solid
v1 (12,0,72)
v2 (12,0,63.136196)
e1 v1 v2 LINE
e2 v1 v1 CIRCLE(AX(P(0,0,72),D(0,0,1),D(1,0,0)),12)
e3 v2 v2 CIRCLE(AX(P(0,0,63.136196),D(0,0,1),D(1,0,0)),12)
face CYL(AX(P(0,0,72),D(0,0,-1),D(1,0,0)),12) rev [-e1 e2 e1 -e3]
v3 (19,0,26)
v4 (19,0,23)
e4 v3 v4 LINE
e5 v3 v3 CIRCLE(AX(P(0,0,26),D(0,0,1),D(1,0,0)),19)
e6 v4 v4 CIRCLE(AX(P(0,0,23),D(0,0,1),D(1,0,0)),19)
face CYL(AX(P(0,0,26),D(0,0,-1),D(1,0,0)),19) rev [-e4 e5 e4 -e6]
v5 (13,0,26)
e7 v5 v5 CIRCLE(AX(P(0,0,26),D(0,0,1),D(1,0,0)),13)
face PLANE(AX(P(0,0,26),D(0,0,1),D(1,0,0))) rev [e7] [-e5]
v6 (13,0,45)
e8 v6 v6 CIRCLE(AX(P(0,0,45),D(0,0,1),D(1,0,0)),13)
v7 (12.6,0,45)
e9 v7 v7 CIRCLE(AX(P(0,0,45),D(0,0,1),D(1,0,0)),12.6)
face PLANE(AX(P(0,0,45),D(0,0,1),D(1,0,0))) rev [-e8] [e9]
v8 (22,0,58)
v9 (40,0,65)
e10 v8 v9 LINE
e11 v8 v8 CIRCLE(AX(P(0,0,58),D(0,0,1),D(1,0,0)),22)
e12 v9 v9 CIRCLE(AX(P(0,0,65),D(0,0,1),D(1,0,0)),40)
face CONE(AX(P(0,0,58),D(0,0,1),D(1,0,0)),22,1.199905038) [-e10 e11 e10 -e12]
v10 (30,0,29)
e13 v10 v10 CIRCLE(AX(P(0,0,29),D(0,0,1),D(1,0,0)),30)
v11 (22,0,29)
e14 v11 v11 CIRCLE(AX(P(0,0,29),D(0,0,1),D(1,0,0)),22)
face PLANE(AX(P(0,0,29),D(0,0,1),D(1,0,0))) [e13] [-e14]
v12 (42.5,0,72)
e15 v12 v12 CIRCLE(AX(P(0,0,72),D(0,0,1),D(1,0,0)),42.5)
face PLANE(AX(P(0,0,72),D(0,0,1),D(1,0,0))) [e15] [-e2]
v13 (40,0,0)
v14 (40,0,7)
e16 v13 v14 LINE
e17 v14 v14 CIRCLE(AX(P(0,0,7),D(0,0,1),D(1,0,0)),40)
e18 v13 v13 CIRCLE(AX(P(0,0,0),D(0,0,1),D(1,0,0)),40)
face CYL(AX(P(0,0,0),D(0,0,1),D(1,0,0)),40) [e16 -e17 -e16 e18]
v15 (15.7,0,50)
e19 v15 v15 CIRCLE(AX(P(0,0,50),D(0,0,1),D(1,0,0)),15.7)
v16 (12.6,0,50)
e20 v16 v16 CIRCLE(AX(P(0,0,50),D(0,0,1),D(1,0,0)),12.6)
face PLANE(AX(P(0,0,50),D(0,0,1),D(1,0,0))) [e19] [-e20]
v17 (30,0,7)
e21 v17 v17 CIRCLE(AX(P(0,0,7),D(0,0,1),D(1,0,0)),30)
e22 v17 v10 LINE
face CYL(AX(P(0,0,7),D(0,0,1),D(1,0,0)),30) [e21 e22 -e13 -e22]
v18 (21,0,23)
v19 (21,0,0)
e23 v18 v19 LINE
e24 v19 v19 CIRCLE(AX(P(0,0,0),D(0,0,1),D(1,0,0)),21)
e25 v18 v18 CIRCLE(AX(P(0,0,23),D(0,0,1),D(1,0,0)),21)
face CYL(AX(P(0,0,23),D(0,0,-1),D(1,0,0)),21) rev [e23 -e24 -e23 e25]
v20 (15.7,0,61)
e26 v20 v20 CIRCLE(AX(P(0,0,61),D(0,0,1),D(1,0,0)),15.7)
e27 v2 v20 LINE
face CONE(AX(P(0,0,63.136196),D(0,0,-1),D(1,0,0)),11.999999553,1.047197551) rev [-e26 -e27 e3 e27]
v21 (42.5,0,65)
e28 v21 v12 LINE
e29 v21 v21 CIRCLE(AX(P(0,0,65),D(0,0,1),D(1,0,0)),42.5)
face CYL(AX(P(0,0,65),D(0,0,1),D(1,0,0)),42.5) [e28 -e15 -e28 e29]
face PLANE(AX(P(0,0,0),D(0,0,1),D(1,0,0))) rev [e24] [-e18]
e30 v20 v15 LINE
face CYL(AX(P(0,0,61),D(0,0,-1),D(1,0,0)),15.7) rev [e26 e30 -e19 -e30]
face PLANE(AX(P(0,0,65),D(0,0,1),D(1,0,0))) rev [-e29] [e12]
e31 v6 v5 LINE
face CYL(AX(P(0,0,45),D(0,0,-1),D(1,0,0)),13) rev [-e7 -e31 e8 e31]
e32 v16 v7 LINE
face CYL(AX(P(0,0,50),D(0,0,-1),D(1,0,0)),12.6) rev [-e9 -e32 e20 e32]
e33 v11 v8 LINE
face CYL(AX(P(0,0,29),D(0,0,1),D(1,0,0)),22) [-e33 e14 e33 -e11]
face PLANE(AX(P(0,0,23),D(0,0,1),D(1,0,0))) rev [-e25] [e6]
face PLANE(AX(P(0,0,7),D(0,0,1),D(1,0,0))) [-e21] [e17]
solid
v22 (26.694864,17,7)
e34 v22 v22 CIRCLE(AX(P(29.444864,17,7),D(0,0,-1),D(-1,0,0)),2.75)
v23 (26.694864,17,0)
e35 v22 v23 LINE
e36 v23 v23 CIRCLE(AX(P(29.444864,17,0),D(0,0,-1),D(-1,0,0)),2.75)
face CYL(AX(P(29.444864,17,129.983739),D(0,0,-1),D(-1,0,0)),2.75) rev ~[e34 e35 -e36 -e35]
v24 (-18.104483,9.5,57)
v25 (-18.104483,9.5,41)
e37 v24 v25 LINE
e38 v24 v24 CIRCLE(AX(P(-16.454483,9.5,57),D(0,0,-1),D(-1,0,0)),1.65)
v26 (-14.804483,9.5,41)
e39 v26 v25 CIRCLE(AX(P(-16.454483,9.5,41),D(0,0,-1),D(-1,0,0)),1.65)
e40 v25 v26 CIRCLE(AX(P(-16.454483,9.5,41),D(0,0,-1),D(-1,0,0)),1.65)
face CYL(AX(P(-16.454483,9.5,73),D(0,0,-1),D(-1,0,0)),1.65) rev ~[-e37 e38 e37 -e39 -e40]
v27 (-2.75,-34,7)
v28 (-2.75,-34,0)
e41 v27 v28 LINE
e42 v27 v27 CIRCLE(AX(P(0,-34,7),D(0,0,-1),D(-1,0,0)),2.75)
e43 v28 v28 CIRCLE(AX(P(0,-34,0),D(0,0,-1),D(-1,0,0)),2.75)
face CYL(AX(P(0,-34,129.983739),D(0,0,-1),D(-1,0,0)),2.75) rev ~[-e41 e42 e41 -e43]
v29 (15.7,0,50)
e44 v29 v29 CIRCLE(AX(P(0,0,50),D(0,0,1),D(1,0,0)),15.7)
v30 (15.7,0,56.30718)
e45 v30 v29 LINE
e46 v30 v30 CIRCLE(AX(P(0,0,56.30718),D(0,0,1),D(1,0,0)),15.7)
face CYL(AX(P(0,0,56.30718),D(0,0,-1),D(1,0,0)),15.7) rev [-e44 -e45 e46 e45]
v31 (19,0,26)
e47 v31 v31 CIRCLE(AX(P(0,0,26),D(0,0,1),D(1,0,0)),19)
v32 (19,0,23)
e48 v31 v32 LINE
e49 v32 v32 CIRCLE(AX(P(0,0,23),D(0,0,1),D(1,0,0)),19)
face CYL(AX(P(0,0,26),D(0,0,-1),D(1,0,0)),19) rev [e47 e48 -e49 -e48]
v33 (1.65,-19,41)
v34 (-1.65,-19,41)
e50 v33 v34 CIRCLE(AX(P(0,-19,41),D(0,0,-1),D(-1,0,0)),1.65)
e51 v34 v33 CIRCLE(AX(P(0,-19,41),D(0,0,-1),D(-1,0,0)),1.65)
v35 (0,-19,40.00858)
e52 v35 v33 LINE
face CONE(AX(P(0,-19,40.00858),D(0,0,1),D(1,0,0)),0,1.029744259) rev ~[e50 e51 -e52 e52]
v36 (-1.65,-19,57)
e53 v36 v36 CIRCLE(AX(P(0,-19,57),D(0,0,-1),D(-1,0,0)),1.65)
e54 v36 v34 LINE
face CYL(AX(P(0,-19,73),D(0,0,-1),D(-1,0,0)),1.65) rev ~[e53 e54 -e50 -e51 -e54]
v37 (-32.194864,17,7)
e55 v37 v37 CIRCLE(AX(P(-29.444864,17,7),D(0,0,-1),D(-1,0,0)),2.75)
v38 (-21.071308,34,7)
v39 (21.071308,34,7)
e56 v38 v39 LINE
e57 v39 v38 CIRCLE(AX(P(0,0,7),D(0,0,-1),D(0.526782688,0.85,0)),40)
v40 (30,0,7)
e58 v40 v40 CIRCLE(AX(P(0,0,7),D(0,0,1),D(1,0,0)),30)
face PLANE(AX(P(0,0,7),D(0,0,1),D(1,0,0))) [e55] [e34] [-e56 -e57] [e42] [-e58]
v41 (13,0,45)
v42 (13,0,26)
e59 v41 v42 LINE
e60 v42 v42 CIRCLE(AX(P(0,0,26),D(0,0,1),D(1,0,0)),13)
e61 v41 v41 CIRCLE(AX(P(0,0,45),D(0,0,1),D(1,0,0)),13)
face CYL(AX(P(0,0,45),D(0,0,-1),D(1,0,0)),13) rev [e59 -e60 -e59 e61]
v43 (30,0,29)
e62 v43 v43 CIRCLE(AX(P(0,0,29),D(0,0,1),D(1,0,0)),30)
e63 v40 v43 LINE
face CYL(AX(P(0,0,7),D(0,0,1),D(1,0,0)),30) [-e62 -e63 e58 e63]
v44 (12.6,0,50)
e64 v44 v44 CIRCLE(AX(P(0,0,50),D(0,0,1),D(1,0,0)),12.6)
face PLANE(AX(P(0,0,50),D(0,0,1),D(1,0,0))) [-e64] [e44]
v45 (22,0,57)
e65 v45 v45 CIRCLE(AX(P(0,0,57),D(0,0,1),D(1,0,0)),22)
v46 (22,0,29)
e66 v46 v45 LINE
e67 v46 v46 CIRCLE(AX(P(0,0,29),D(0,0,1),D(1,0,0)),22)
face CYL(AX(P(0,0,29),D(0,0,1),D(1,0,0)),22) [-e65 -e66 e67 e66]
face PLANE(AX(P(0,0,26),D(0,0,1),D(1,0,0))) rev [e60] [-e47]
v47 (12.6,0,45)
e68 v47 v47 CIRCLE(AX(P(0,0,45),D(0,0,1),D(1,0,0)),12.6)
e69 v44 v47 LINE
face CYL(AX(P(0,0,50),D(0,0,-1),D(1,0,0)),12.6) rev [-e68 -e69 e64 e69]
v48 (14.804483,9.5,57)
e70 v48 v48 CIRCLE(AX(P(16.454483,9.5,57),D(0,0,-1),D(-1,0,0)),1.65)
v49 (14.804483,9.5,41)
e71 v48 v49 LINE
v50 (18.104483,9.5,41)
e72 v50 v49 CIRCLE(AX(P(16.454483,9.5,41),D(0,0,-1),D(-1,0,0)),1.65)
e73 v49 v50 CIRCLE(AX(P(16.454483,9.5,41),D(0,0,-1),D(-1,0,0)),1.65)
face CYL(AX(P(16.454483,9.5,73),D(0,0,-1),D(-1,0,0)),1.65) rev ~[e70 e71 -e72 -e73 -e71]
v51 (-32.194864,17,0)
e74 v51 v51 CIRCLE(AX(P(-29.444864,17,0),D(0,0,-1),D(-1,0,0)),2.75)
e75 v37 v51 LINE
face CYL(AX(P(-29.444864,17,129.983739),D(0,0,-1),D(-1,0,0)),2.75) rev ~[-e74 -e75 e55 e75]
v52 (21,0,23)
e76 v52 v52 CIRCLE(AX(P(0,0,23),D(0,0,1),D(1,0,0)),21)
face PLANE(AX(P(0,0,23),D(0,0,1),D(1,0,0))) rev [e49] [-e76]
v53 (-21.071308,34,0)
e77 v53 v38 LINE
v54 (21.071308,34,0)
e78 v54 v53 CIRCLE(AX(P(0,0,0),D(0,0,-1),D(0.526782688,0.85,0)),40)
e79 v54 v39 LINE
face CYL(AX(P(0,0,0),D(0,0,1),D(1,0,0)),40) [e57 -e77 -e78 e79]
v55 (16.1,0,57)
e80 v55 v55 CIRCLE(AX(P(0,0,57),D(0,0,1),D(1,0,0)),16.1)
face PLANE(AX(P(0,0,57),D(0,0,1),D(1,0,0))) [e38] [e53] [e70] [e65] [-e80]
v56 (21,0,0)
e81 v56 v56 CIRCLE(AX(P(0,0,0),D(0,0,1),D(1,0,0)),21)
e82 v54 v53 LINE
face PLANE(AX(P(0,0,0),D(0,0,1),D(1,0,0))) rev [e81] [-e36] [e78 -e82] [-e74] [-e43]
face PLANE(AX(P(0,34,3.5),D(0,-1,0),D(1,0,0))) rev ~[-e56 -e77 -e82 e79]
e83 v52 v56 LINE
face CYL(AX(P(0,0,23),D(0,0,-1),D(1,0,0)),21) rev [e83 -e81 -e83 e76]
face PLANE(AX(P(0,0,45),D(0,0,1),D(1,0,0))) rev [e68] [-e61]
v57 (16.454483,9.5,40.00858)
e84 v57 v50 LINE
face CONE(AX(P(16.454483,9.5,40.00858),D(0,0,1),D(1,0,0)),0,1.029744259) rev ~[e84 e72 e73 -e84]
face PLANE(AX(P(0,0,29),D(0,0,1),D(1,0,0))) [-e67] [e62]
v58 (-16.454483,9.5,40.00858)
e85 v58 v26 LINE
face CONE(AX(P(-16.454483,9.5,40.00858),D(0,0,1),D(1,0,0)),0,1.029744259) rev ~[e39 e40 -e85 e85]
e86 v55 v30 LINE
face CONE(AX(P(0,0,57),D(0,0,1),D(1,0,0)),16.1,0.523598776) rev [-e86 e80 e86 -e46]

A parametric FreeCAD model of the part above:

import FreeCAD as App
import Part
import Sketcher

V = App.Vector
Q = App.Units.Quantity


def add_polygon(sketch, points):
    """Adds a closed chain of lines whose ends are joined by coincident constraints."""
    first, n = sketch.GeometryCount, len(points)
    for a, b in zip(points, points[1:] + points[:1]):
        sketch.addGeometry(Part.LineSegment(App.Vector(*a, 0), App.Vector(*b, 0)), False)
    for i in range(n):
        sketch.addConstraint(Sketcher.Constraint("Coincident", first + i, 2, first + (i + 1) % n, 1))

doc = App.newDocument("Part")
body = doc.addObject("PartDesign::Body", "Body")

sketch1 = body.newObject("Sketcher::SketchObject", "Sketch")
sketch1.AttachmentSupport = (doc.getObject("XZ_Plane"), [""])
sketch1.MapMode = "FlatFace"
add_polygon(sketch1, [(22, 58), (40, 65), (42.5, 65), (42.5, 72), (12, 72), (12, 63.14), (15.7, 61), (15.7, 50), (12.6, 50), (12.6, 45), (13, 45), (13, 26), (19, 26), (19, 23), (21, 23), (21, 0), (40, 0), (40, 7), (30, 7), (30, 29), (22, 29)])
sketch1.addConstraint(Sketcher.Constraint("Horizontal", 1))
sketch1.addConstraint(Sketcher.Constraint("Vertical", 2))
sketch1.addConstraint(Sketcher.Constraint("Horizontal", 3))
sketch1.addConstraint(Sketcher.Constraint("Vertical", 4))
sketch1.addConstraint(Sketcher.Constraint("Vertical", 6))
sketch1.addConstraint(Sketcher.Constraint("Horizontal", 7))
sketch1.addConstraint(Sketcher.Constraint("Vertical", 8))
sketch1.addConstraint(Sketcher.Constraint("Horizontal", 9))
sketch1.addConstraint(Sketcher.Constraint("Vertical", 10))
sketch1.addConstraint(Sketcher.Constraint("Horizontal", 11))
sketch1.addConstraint(Sketcher.Constraint("Vertical", 12))
sketch1.addConstraint(Sketcher.Constraint("Horizontal", 13))
sketch1.addConstraint(Sketcher.Constraint("Vertical", 14))
sketch1.addConstraint(Sketcher.Constraint("Horizontal", 15))
sketch1.addConstraint(Sketcher.Constraint("Vertical", 16))
sketch1.addConstraint(Sketcher.Constraint("Horizontal", 17))
sketch1.addConstraint(Sketcher.Constraint("Vertical", 18))
sketch1.addConstraint(Sketcher.Constraint("Horizontal", 19))
sketch1.addConstraint(Sketcher.Constraint("Vertical", 20))
sketch1.addConstraint(Sketcher.Constraint("PointOnObject", 14, 2, -1))
sketch1.addConstraint(Sketcher.Constraint("Vertical", 0, 2, 15, 2))
sketch1.addConstraint(Sketcher.Constraint("Equal", 15, 10))
sketch1.addConstraint(Sketcher.Constraint("Equal", 2, 16))
sketch1.addConstraint(Sketcher.Constraint("DistanceX", 11, 1, 11, 2, Q("6 mm")))
sketch1.addConstraint(Sketcher.Constraint("DistanceX", 13, 1, 13, 2, Q("2 mm")))
sketch1.addConstraint(Sketcher.Constraint("DistanceX", 15, 1, 15, 2, Q("19 mm")))
sketch1.addConstraint(Sketcher.Constraint("DistanceX", 17, 2, 17, 1, Q("10 mm")))
sketch1.addConstraint(Sketcher.Constraint("DistanceX", 19, 2, 19, 1, Q("8 mm")))
sketch1.addConstraint(Sketcher.Constraint("DistanceY", 2, 1, 2, 2, Q("7 mm")))
sketch1.addConstraint(Sketcher.Constraint("DistanceY", 6, 2, 6, 1, Q("11 mm")))
sketch1.addConstraint(Sketcher.Constraint("DistanceY", 8, 2, 8, 1, Q("5 mm")))
sketch1.addConstraint(Sketcher.Constraint("DistanceY", 12, 2, 12, 1, Q("3 mm")))
sketch1.addConstraint(Sketcher.Constraint("DistanceY", 14, 2, 14, 1, Q("23 mm")))
sketch1.addConstraint(Sketcher.Constraint("DistanceY", 18, 1, 18, 2, Q("22 mm")))
sketch1.addConstraint(Sketcher.Constraint("DistanceY", 20, 1, 20, 2, Q("29 mm")))
sketch1.addConstraint(Sketcher.Constraint("Angle", 5, Q("-30 deg")))
sketch1.addConstraint(Sketcher.Constraint("DistanceX", 1, 1, 1, 2, Q("2.5 mm")))
sketch1.addConstraint(Sketcher.Constraint("DistanceX", 3, 2, 3, 1, Q("30.5 mm")))
sketch1.addConstraint(Sketcher.Constraint("DistanceX", 7, 2, 7, 1, Q("3.1 mm")))
sketch1.addConstraint(Sketcher.Constraint("DistanceX", 9, 1, 9, 2, Q("0.4 mm")))
sketch1.addConstraint(Sketcher.Constraint("DistanceX", -1, 1, 0, 2, Q("40 mm")))
sketch1.addConstraint(Sketcher.Constraint("DistanceY", -1, 1, 0, 2, Q("65 mm")))
revolution = body.newObject("PartDesign::Revolution", "Revolution")
revolution.Profile = sketch1
revolution.ReferenceAxis = (sketch1, ["V_Axis"])
revolution.Angle = 360
body2 = doc.addObject("PartDesign::Body", "Body001")

sketch2 = body2.newObject("Sketcher::SketchObject", "Sketch001")
sketch2.AttachmentSupport = (doc.getObject("XZ_Plane001"), [""])
sketch2.MapMode = "FlatFace"
add_polygon(sketch2, [(21, 23), (21, 0), (40, 0), (40, 7), (30, 7), (30, 29), (22, 29), (22, 57), (16.1, 57), (15.7, 56.31), (15.7, 50), (12.6, 50), (12.6, 45), (13, 45), (13, 26), (19, 26), (19, 23)])
sketch2.addConstraint(Sketcher.Constraint("Vertical", 0))
sketch2.addConstraint(Sketcher.Constraint("Horizontal", 1))
sketch2.addConstraint(Sketcher.Constraint("Vertical", 2))
sketch2.addConstraint(Sketcher.Constraint("Horizontal", 3))
sketch2.addConstraint(Sketcher.Constraint("Vertical", 4))
sketch2.addConstraint(Sketcher.Constraint("Horizontal", 5))
sketch2.addConstraint(Sketcher.Constraint("Vertical", 6))
sketch2.addConstraint(Sketcher.Constraint("Horizontal", 7))
sketch2.addConstraint(Sketcher.Constraint("Vertical", 9))
sketch2.addConstraint(Sketcher.Constraint("Horizontal", 10))
sketch2.addConstraint(Sketcher.Constraint("Vertical", 11))
sketch2.addConstraint(Sketcher.Constraint("Horizontal", 12))
sketch2.addConstraint(Sketcher.Constraint("Vertical", 13))
sketch2.addConstraint(Sketcher.Constraint("Horizontal", 14))
sketch2.addConstraint(Sketcher.Constraint("Vertical", 15))
sketch2.addConstraint(Sketcher.Constraint("Horizontal", 16))
sketch2.addConstraint(Sketcher.Constraint("PointOnObject", 0, 2, -1))
sketch2.addConstraint(Sketcher.Constraint("Equal", 1, 13))
sketch2.addConstraint(Sketcher.Constraint("DistanceX", 1, 1, 1, 2, Q("19 mm")))
sketch2.addConstraint(Sketcher.Constraint("DistanceX", 3, 2, 3, 1, Q("10 mm")))
sketch2.addConstraint(Sketcher.Constraint("DistanceX", 5, 2, 5, 1, Q("8 mm")))
sketch2.addConstraint(Sketcher.Constraint("DistanceX", 14, 1, 14, 2, Q("6 mm")))
sketch2.addConstraint(Sketcher.Constraint("DistanceX", 16, 1, 16, 2, Q("2 mm")))
sketch2.addConstraint(Sketcher.Constraint("DistanceY", 0, 2, 0, 1, Q("23 mm")))
sketch2.addConstraint(Sketcher.Constraint("DistanceY", 2, 1, 2, 2, Q("7 mm")))
sketch2.addConstraint(Sketcher.Constraint("DistanceY", 4, 1, 4, 2, Q("22 mm")))
sketch2.addConstraint(Sketcher.Constraint("DistanceY", 6, 1, 6, 2, Q("28 mm")))
sketch2.addConstraint(Sketcher.Constraint("DistanceY", 11, 2, 11, 1, Q("5 mm")))
sketch2.addConstraint(Sketcher.Constraint("DistanceY", 15, 2, 15, 1, Q("3 mm")))
sketch2.addConstraint(Sketcher.Constraint("Angle", 8, Q("-120 deg")))
sketch2.addConstraint(Sketcher.Constraint("DistanceX", 7, 2, 7, 1, Q("5.9 mm")))
sketch2.addConstraint(Sketcher.Constraint("DistanceX", 10, 2, 10, 1, Q("3.1 mm")))
sketch2.addConstraint(Sketcher.Constraint("DistanceX", 12, 1, 12, 2, Q("0.4 mm")))
sketch2.addConstraint(Sketcher.Constraint("DistanceX", -1, 1, 0, 2, Q("21 mm")))
revolution2 = body2.newObject("PartDesign::Revolution", "Revolution001")
revolution2.Profile = sketch2
revolution2.ReferenceAxis = (sketch2, ["V_Axis"])
revolution2.Angle = 360

sketch3 = body2.newObject("Sketcher::SketchObject", "Sketch002")
sketch3.AttachmentSupport = (doc.getObject("XZ_Plane001"), [""])
sketch3.MapMode = "FlatFace"
sketch3.AttachmentOffset = App.Placement(V(0, 0, -34), App.Rotation())
add_polygon(sketch3, [(-40, 8), (-40, 0), (40, 0), (40, 8)])
sketch3.addConstraint(Sketcher.Constraint("Vertical", 0))
sketch3.addConstraint(Sketcher.Constraint("Horizontal", 1))
sketch3.addConstraint(Sketcher.Constraint("Vertical", 2))
sketch3.addConstraint(Sketcher.Constraint("Horizontal", 3))
sketch3.addConstraint(Sketcher.Constraint("DistanceX", 1, 1, 1, 2, Q("80 mm")))
sketch3.addConstraint(Sketcher.Constraint("DistanceY", 0, 2, 0, 1, Q("8 mm")))
sketch3.addConstraint(Sketcher.Constraint("DistanceX", 0, 2, -1, 1, Q("40 mm")))
sketch3.addConstraint(Sketcher.Constraint("DistanceY", 0, 2, -1, 1, Q("0.5 mm")))
pocket1 = body2.newObject("PartDesign::Pocket", "Pocket")
pocket1.Profile = sketch3
pocket1.Length = 10

sketch4 = body2.newObject("Sketcher::SketchObject", "Sketch003")
sketch4.AttachmentSupport = (doc.getObject("XY_Plane001"), [""])
sketch4.MapMode = "FlatFace"
sketch4.AttachmentOffset = App.Placement(V(0, 0, 57), App.Rotation())
sketch4.addGeometry(Part.Circle(V(16.5, 9.5, 0), V(0, 0, 1), 1.6), False)
sketch4.addGeometry(Part.Circle(V(0, -19, 0), V(0, 0, 1), 1.6), False)
sketch4.addGeometry(Part.Circle(V(-16.5, 9.5, 0), V(0, 0, 1), 1.6), False)
sketch4.addConstraint(Sketcher.Constraint("Equal", 0, 1))
sketch4.addConstraint(Sketcher.Constraint("Equal", 1, 2))
sketch4.addConstraint(Sketcher.Constraint("Symmetric", 0, 3, 2, 3, -2))
sketch4.addConstraint(Sketcher.Constraint("PointOnObject", 1, 3, -2))
sketch4.addConstraint(Sketcher.Constraint("Diameter", 0, Q("3.3 mm")))
sketch4.addConstraint(Sketcher.Constraint("DistanceY", 1, 3, -1, 1, Q("19 mm")))
sketch4.addConstraint(Sketcher.Constraint("DistanceY", -1, 1, 0, 3, Q("9.5 mm")))
sketch4.addConstraint(Sketcher.Constraint("DistanceX", -1, 1, 0, 3, Q("16.454483 mm")))
doc.recompute()
hole = body2.newObject("PartDesign::Hole", "Hole")
hole.Profile = sketch4
hole.ThreadType = "None"
hole.Diameter = 3.3
hole.DepthType = "Dimension"
hole.Depth = 16
hole.DrillPoint = "Angled"
hole.DrillPointAngle = 118

sketch5 = body2.newObject("Sketcher::SketchObject", "Sketch004")
sketch5.AttachmentSupport = (doc.getObject("XY_Plane001"), [""])
sketch5.MapMode = "FlatFace"
sketch5.AttachmentOffset = App.Placement(V(0, 0, 7), App.Rotation())
sketch5.addGeometry(Part.Circle(V(-29.4, 17, 0), V(0, 0, 1), 2.8), False)
sketch5.addGeometry(Part.Circle(V(29.4, 17, 0), V(0, 0, 1), 2.8), False)
sketch5.addGeometry(Part.Circle(V(0, -34, 0), V(0, 0, 1), 2.8), False)
sketch5.addConstraint(Sketcher.Constraint("Equal", 0, 1))
sketch5.addConstraint(Sketcher.Constraint("Equal", 1, 2))
sketch5.addConstraint(Sketcher.Constraint("Symmetric", 0, 3, 1, 3, -2))
sketch5.addConstraint(Sketcher.Constraint("PointOnObject", 2, 3, -2))
sketch5.addConstraint(Sketcher.Constraint("Diameter", 0, Q("5.5 mm")))
sketch5.addConstraint(Sketcher.Constraint("DistanceY", -1, 1, 0, 3, Q("17 mm")))
sketch5.addConstraint(Sketcher.Constraint("DistanceY", 2, 3, -1, 1, Q("34 mm")))
sketch5.addConstraint(Sketcher.Constraint("DistanceX", 0, 3, -1, 1, Q("29.444864 mm")))
doc.recompute()
hole2 = body2.newObject("PartDesign::Hole", "Hole001")
hole2.Profile = sketch5
hole2.ThreadType = "None"
hole2.Diameter = 5.5
hole2.DepthType = "ThroughAll"

doc.recompute()
